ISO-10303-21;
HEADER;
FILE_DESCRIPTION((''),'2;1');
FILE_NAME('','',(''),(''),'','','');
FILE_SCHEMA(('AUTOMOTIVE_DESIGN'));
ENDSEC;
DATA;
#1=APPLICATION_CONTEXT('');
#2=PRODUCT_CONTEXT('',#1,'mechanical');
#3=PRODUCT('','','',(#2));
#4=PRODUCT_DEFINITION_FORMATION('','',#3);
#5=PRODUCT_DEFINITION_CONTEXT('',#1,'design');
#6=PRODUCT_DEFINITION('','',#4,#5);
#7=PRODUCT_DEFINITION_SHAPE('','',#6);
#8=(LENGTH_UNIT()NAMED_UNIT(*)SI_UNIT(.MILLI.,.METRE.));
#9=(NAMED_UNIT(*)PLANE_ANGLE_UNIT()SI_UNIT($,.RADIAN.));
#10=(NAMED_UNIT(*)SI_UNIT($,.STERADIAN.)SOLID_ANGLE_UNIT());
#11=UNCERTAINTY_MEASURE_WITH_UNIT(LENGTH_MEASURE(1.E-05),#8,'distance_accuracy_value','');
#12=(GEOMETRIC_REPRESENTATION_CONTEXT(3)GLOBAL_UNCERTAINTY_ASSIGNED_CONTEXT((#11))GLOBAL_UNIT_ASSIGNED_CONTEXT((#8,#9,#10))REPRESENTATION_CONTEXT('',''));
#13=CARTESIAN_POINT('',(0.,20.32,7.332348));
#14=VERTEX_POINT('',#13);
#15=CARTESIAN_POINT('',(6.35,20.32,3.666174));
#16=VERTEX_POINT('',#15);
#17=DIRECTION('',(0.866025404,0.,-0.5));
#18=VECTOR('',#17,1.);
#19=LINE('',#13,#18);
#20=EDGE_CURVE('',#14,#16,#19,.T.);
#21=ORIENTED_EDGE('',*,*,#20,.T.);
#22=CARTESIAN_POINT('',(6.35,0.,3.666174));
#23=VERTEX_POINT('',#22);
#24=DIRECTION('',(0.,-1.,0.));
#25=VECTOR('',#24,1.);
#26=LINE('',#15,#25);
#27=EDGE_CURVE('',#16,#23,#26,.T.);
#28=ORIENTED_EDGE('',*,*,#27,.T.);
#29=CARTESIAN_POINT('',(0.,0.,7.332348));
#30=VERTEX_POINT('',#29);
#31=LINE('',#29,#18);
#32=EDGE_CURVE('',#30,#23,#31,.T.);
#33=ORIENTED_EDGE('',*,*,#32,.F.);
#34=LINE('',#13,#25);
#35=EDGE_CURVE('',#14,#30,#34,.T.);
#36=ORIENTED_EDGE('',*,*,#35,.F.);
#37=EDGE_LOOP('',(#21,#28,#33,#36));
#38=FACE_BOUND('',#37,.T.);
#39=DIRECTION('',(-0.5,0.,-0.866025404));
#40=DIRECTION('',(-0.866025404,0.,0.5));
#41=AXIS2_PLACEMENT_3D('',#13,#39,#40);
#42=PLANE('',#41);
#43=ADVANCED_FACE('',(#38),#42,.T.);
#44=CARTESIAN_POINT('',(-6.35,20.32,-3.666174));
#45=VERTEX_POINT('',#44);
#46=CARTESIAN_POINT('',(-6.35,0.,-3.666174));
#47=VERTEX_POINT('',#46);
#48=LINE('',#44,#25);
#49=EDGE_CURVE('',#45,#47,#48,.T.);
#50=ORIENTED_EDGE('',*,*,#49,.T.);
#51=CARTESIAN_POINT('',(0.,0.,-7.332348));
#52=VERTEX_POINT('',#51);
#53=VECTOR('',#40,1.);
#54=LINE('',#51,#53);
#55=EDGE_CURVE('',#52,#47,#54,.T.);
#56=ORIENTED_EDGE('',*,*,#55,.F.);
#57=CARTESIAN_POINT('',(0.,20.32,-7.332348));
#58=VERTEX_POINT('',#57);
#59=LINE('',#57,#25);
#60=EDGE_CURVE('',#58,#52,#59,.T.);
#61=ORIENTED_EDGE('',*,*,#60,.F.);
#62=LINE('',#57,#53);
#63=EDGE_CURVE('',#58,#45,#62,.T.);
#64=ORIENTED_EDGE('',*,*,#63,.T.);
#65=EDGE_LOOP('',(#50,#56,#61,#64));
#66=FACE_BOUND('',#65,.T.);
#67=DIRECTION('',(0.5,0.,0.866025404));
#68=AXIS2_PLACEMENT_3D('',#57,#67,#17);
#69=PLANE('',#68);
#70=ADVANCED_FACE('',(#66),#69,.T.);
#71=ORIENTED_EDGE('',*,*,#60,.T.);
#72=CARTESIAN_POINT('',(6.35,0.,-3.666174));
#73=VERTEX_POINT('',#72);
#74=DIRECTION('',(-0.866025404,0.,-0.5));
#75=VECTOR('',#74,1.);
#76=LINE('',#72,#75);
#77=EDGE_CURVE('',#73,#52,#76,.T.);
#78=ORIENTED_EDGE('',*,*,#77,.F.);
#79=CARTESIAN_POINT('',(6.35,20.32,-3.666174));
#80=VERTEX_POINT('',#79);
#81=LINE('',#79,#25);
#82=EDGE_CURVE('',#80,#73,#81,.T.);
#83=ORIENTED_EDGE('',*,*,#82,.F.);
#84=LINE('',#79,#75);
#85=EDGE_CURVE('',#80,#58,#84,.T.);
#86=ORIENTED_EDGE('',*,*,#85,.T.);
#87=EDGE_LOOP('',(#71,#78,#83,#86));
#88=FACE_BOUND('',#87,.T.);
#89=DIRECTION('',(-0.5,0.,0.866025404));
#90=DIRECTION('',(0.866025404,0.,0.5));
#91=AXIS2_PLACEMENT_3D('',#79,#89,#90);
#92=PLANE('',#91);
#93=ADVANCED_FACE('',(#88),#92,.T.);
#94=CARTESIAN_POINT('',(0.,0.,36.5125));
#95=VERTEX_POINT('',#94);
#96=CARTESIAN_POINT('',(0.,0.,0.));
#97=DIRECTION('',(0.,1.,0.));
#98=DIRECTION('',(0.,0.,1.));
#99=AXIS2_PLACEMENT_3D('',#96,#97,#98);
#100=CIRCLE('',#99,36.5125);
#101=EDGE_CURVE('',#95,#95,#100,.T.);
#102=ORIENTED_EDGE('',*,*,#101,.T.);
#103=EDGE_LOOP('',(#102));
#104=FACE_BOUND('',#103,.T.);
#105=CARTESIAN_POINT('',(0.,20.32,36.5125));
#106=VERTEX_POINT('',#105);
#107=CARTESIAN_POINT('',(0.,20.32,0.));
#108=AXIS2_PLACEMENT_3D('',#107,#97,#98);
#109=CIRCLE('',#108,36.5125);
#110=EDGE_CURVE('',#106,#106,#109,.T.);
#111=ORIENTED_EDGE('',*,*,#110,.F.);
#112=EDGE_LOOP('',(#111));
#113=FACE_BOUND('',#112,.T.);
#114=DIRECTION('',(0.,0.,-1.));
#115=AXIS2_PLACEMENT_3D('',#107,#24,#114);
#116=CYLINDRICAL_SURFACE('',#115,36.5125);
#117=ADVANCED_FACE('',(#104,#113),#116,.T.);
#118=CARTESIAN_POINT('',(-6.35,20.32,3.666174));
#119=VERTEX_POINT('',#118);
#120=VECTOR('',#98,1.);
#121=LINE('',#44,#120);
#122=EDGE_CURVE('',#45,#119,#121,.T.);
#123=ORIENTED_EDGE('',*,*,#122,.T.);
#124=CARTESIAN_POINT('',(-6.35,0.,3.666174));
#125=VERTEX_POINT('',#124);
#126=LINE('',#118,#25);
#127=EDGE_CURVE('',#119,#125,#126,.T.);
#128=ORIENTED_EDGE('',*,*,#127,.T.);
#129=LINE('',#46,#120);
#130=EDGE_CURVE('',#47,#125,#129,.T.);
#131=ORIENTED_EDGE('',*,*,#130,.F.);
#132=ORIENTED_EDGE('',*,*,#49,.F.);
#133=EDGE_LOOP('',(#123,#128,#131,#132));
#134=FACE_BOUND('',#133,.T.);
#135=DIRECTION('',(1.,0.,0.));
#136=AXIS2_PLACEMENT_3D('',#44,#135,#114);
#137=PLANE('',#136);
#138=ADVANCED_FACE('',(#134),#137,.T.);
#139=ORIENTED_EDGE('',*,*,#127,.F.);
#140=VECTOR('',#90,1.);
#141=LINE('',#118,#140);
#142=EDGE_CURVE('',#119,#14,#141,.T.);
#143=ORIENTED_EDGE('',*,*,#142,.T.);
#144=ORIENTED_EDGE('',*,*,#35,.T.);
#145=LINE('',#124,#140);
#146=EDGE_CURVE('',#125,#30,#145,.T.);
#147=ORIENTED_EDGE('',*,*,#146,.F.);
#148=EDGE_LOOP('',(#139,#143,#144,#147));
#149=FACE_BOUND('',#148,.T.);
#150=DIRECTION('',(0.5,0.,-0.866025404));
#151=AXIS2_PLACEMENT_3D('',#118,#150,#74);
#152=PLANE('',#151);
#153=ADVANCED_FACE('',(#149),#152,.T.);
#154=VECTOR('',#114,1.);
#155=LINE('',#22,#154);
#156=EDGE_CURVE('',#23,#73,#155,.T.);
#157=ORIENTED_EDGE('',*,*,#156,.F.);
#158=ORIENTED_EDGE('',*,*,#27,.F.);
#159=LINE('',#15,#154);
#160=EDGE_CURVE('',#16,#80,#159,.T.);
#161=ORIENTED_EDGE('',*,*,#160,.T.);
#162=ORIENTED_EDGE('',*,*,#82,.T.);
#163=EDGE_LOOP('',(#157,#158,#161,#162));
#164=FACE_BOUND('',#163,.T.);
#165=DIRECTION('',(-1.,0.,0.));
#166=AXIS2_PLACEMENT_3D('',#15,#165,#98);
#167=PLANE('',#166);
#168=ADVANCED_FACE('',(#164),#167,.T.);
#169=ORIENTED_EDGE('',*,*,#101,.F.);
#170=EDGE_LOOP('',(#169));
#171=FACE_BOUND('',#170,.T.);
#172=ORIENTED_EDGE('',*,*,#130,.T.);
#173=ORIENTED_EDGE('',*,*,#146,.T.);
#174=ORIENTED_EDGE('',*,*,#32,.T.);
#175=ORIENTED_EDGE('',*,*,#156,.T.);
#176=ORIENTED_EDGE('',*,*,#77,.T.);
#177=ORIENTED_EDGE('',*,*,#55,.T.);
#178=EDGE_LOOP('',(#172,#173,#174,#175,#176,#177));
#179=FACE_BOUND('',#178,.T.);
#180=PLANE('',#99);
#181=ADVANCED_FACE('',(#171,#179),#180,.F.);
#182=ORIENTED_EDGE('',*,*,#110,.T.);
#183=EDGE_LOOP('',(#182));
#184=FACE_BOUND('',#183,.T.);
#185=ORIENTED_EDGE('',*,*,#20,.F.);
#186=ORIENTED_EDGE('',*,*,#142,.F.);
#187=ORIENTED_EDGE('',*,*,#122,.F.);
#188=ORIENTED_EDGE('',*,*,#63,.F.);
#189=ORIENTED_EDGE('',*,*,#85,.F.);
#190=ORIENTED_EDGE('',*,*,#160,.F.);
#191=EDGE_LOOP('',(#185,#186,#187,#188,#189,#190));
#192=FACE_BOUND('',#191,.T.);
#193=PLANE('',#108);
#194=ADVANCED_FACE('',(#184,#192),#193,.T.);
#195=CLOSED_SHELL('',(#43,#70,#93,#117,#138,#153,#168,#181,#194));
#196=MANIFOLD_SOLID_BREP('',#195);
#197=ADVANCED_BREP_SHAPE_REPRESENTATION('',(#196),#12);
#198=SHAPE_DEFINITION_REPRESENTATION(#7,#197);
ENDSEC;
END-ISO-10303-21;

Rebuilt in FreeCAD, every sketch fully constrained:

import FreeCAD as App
import Part
import Sketcher

V = App.Vector
Q = App.Units.Quantity


def add_polygon(sketch, points):
    """Adds a closed chain of lines whose ends are joined by coincident constraints."""
    first, n = sketch.GeometryCount, len(points)
    for a, b in zip(points, points[1:] + points[:1]):
        sketch.addGeometry(Part.LineSegment(App.Vector(*a, 0), App.Vector(*b, 0)), False)
    for i in range(n):
        sketch.addConstraint(Sketcher.Constraint("Coincident", first + i, 2, first + (i + 1) % n, 1))

doc = App.newDocument("Part")
body = doc.addObject("PartDesign::Body", "Body")

sketch1 = body.newObject("Sketcher::SketchObject", "Sketch")
sketch1.AttachmentSupport = (doc.getObject("XZ_Plane"), [""])
sketch1.MapMode = "FlatFace"
sketch1.addGeometry(Part.Circle(V(0, 0, 0), V(0, 0, 1), 37), False)
add_polygon(sketch1, [(-6, -4), (0, -7), (6, -4), (6, 4), (0, 7), (-6, 4)])
sketch1.addConstraint([
    Sketcher.Constraint("Vertical", 3),
    Sketcher.Constraint("Vertical", 6),
    Sketcher.Constraint("Coincident", 0, 3, -1, 1),
    Sketcher.Constraint("Symmetric", 1, 2, 4, 2, -1, 1),
    Sketcher.Constraint("Symmetric", 2, 2, 5, 2, -1, 1),
    Sketcher.Constraint("PointOnObject", 1, 2, -2),
    Sketcher.Constraint("Parallel", 1, 4),
    Sketcher.Constraint("Horizontal", 3, 2, 5, 2),
    Sketcher.Constraint("Diameter", 0, Q("2.875 in")),
    Sketcher.Constraint("Angle", 1, Q("-30 deg")),
    Sketcher.Constraint("DistanceX", 5, 2, 3, 2, Q("0.5 in")),
    Sketcher.Constraint("DistanceY", 3, 1, 3, 2, Q("7.332348 mm")),
])
pad1 = body.newObject("PartDesign::Pad", "Pad")
pad1.Profile = sketch1
pad1.Length = Q("0.8 in")
pad1.Reversed = True

doc.recompute()
